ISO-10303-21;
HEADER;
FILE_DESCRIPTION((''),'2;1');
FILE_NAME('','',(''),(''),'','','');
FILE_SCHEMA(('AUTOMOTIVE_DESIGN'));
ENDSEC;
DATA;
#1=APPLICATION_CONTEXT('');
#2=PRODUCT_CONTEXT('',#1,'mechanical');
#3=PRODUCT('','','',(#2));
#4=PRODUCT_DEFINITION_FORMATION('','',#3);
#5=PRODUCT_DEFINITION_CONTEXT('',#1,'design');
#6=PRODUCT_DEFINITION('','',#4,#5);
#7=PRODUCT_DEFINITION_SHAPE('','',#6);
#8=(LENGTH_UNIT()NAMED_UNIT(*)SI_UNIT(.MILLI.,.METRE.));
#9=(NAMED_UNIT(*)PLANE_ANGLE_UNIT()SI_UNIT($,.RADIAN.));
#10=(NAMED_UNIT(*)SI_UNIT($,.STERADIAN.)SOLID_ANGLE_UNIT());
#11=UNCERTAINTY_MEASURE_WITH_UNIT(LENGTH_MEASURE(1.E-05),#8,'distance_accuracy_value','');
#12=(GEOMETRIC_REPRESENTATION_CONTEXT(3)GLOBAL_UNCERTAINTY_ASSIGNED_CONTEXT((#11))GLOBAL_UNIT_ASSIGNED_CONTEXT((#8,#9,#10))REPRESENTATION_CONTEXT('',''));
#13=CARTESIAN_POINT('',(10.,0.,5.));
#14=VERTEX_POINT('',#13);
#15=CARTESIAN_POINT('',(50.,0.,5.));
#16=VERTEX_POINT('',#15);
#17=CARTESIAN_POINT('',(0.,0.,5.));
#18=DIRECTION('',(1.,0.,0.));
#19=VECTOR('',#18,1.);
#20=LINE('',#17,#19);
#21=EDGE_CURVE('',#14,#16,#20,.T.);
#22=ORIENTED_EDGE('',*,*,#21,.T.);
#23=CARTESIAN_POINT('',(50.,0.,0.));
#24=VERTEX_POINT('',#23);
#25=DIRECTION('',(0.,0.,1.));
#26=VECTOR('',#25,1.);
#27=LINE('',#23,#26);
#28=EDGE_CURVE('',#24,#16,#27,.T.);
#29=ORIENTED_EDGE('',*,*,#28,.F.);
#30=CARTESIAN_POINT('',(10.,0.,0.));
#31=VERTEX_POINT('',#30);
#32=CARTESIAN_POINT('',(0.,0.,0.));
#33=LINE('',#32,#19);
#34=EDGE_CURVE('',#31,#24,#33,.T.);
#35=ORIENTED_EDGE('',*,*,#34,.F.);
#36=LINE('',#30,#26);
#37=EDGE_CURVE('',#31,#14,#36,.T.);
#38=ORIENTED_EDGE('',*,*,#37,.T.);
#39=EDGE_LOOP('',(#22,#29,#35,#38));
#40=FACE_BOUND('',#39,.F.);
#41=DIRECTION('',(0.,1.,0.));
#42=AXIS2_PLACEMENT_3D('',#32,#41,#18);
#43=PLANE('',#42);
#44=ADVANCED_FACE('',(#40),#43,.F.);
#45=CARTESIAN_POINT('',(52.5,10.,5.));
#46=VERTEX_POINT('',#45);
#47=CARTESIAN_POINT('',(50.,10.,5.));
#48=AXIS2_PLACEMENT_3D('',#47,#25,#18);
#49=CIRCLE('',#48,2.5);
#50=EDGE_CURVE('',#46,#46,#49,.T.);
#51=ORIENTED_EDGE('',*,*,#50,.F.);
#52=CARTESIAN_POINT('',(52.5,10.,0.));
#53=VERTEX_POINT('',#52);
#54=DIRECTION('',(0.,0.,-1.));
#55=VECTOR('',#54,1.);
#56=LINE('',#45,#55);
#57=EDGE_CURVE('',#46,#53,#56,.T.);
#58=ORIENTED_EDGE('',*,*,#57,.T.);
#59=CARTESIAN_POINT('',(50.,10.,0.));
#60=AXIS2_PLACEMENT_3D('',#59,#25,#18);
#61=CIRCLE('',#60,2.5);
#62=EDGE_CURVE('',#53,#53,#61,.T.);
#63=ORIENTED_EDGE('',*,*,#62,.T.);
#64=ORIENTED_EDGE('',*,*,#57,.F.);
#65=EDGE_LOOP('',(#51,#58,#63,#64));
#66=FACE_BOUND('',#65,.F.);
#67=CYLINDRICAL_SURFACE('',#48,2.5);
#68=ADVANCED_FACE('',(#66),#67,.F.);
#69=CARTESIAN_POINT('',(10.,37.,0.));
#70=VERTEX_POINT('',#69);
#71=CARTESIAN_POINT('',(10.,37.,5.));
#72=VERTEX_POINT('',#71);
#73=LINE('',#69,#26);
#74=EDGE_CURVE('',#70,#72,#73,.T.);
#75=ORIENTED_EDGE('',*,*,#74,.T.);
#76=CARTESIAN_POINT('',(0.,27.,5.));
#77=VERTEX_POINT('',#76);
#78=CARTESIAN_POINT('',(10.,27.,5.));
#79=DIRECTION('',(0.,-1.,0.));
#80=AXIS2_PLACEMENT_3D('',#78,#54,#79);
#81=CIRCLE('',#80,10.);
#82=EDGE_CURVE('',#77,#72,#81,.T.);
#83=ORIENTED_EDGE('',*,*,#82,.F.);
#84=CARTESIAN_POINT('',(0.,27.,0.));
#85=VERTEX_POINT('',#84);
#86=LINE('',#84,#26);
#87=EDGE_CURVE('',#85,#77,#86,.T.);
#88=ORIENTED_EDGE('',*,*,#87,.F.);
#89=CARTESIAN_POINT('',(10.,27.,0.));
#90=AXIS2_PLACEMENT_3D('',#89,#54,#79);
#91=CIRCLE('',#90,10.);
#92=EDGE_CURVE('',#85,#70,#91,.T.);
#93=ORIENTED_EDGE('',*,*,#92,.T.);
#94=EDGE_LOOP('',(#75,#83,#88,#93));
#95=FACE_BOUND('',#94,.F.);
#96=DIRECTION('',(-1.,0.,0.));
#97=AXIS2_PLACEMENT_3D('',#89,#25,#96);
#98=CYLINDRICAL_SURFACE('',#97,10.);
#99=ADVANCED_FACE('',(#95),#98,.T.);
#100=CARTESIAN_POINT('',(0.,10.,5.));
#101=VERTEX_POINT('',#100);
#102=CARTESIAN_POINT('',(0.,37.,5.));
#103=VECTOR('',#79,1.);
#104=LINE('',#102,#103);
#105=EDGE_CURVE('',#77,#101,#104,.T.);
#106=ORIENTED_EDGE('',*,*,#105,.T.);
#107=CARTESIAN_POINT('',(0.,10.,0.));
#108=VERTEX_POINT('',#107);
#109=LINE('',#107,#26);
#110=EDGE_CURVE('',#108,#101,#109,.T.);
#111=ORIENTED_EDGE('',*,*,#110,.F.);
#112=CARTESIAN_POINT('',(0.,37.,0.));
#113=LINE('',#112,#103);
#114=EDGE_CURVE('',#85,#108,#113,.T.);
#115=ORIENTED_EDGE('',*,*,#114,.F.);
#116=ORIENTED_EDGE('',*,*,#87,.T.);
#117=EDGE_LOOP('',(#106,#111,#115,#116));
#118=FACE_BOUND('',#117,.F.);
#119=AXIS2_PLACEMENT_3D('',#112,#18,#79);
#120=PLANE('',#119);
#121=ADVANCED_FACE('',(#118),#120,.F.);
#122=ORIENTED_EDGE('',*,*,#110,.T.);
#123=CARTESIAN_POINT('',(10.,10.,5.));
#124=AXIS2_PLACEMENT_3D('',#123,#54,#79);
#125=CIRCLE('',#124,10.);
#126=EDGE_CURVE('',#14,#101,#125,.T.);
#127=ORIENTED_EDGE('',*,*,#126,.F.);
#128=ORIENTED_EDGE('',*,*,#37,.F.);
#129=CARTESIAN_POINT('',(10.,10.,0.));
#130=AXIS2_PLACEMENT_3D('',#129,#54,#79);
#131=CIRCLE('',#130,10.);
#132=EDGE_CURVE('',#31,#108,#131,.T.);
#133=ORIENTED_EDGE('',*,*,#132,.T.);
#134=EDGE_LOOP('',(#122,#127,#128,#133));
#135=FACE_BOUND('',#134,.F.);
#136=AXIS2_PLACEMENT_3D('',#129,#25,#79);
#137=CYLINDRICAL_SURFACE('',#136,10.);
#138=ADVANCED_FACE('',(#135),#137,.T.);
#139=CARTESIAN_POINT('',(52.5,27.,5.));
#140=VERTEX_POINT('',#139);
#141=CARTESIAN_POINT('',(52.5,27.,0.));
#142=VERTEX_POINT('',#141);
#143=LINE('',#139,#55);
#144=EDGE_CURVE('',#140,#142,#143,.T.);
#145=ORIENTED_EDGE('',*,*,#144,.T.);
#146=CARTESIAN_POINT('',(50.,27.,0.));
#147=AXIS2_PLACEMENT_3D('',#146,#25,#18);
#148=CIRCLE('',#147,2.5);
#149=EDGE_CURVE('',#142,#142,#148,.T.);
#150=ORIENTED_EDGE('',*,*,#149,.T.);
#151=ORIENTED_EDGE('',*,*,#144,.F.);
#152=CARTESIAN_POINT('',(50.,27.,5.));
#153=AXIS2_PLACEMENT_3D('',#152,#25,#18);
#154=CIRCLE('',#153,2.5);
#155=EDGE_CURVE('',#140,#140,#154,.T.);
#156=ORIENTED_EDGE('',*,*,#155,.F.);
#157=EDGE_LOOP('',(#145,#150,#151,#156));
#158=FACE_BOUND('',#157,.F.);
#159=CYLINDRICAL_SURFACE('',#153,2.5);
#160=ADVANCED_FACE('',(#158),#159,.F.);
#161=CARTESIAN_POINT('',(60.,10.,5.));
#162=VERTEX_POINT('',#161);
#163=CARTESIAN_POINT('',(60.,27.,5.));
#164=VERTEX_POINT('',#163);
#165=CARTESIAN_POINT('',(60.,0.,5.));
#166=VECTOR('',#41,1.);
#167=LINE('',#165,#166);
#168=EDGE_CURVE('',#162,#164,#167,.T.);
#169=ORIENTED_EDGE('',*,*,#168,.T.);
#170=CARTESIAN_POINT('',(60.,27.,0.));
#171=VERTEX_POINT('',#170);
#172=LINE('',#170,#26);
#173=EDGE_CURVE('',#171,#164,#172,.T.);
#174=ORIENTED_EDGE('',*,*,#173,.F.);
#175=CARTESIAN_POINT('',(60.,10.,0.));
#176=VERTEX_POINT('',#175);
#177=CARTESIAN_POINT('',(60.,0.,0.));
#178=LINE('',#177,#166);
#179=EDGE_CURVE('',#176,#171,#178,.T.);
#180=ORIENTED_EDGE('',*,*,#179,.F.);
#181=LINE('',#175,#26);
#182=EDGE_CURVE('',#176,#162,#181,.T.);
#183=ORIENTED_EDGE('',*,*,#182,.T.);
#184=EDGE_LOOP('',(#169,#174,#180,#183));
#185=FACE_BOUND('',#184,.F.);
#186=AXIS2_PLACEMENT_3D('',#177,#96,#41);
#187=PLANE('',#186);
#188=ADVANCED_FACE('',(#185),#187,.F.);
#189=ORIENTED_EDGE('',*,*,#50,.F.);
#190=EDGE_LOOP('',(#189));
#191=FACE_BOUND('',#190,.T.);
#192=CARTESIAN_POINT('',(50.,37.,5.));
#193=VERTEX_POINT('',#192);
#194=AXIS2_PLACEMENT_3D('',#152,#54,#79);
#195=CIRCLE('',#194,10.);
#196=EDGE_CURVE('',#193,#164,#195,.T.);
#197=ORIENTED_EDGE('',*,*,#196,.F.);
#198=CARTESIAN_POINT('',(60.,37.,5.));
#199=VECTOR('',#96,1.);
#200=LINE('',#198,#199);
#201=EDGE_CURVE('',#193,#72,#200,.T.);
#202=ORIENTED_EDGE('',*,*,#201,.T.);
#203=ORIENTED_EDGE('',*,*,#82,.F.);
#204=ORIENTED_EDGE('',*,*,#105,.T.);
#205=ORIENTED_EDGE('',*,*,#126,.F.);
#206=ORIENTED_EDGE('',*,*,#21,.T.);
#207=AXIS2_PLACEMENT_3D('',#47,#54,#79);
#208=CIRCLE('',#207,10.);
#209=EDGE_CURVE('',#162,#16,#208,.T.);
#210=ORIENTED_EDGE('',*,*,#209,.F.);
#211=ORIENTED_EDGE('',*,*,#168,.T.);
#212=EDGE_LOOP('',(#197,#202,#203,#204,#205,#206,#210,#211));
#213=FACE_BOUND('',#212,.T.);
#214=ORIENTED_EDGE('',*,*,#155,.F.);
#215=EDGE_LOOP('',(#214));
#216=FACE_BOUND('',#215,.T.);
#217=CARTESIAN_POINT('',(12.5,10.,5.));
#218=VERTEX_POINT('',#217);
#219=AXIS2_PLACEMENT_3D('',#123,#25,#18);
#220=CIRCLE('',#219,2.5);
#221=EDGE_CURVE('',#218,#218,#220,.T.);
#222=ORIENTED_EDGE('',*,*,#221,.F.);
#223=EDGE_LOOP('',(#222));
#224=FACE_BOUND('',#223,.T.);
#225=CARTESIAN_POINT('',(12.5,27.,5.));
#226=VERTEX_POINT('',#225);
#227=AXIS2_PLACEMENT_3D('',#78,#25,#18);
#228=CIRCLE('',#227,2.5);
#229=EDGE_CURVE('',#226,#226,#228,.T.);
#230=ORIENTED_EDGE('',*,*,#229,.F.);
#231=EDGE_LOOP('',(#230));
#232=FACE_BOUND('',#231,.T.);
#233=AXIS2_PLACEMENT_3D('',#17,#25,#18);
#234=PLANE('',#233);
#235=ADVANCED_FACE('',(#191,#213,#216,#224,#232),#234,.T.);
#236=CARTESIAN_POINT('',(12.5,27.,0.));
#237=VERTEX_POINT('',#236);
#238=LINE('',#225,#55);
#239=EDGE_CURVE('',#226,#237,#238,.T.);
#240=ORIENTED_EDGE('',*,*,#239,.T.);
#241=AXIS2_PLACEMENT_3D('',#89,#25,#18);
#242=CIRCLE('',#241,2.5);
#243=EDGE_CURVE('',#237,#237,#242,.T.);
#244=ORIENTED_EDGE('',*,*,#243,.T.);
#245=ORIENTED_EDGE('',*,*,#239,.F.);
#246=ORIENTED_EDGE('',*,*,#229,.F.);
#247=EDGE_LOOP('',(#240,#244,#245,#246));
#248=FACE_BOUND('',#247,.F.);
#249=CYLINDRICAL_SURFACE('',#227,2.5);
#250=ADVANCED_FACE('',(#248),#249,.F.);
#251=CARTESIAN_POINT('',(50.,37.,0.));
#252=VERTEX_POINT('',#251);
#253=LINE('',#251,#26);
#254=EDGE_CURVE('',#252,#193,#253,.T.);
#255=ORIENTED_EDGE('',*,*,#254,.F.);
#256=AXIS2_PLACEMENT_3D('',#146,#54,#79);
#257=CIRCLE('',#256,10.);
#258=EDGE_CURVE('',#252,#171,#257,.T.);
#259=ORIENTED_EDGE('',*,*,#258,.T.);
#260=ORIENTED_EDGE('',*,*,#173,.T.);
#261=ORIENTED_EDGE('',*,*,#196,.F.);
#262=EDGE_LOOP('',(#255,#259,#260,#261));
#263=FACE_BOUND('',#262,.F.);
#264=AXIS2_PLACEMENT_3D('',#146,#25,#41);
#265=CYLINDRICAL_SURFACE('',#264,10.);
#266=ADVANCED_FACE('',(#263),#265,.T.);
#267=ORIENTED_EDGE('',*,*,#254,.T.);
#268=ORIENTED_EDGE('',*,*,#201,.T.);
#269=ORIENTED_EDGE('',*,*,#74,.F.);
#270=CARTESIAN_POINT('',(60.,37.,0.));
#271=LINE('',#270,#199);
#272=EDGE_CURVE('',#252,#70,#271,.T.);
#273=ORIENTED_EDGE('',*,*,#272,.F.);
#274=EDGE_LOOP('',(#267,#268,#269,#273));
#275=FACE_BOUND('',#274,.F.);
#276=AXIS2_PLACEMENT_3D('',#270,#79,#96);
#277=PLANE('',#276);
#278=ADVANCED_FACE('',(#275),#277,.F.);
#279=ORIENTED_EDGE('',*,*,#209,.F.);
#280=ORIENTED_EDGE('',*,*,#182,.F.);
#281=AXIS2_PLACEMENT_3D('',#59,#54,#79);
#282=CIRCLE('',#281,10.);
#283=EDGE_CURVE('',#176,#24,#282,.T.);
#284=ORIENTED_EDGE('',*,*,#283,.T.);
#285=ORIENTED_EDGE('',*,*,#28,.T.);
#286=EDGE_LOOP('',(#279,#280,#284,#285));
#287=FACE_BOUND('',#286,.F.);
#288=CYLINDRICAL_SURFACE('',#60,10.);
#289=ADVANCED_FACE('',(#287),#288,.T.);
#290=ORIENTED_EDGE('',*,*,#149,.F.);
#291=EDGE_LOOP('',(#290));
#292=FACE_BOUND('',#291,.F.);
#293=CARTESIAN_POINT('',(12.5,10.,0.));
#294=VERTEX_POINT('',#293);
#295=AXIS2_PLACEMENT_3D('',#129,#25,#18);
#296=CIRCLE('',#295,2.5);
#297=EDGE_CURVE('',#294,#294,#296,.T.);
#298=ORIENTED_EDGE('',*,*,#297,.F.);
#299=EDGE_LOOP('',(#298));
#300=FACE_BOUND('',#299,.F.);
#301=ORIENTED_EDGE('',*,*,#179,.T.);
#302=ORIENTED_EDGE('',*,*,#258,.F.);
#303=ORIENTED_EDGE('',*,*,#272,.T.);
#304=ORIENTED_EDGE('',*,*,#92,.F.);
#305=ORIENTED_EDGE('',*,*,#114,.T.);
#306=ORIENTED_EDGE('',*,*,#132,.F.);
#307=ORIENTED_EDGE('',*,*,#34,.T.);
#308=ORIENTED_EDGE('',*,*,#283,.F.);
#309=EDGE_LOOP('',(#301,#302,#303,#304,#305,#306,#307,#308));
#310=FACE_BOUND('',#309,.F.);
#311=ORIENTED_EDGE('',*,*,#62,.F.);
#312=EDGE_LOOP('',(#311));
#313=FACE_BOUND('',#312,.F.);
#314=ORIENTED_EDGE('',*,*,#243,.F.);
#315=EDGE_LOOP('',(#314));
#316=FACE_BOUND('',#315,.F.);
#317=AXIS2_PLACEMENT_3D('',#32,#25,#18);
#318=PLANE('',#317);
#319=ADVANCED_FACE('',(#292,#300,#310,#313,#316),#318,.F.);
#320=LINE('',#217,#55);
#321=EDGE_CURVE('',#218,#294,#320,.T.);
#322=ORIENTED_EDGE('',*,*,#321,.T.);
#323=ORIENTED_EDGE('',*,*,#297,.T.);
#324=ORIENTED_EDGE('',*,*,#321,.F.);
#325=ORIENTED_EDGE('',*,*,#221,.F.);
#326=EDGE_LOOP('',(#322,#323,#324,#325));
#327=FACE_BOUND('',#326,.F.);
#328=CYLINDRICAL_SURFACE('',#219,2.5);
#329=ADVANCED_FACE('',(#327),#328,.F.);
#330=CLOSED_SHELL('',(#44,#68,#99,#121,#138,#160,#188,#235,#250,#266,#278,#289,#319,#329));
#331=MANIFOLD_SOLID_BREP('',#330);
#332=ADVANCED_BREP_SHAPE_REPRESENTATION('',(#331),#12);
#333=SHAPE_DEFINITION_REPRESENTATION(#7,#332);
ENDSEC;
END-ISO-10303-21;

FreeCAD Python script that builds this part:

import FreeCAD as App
import Part
import Sketcher
from FreeCAD import Vector


def edges_at(feature, points):
    """Names of the edges that pass closest to the given points."""
    edges = feature.Shape.Edges
    near = lambda p: min(range(len(edges)), key=lambda i: edges[i].distToShape(Part.Vertex(*p))[0])
    return sorted({f"Edge{near(p) + 1}" for p in points})


def add_polygon(sketch, points):
    """Adds a closed chain of lines whose ends are joined by coincident constraints."""
    first, n = sketch.GeometryCount, len(points)
    for a, b in zip(points, points[1:] + points[:1]):
        sketch.addGeometry(Part.LineSegment(App.Vector(*a, 0), App.Vector(*b, 0)), False)
    for i in range(n):
        sketch.addConstraint(Sketcher.Constraint("Coincident", first + i, 2, first + (i + 1) % n, 1))

doc = App.newDocument("Part")
params = doc.addObject("Spreadsheet::Sheet", "Params")
for row, (alias, value) in enumerate([
    ("sketch1_width", "60 mm"),
    ("sketch1_height", "37 mm"),
    ("pad1_length", "5 mm"),
    ("sketch2_diameter", "5 mm"),
    ("pocket1_length", "5 mm"),
    ("fillet_radius", "10 mm"),
    ("fillet2_radius", "10 mm"),
    ("fillet3_radius", "10 mm"),
    ("fillet4_radius", "10 mm"),
], start=1):
    params.set(f"A{row}", alias)
    params.set(f"B{row}", "=" + value)
    params.setAlias(f"B{row}", alias)

body = doc.addObject("PartDesign::Body", "Body")

# Sketch on XY plane
sketch1 = body.newObject("Sketcher::SketchObject", "Sketch")
sketch1.AttachmentSupport = (doc.getObject("XY_Plane"), [""])
sketch1.MapMode = "FlatFace"
add_polygon(sketch1, [(0, 37), (0, 0), (60, 0), (60, 37)])  # lines 0-3
sketch1.addConstraint([
    Sketcher.Constraint("Vertical", 0),
    Sketcher.Constraint("Horizontal", 1),
    Sketcher.Constraint("Vertical", 2),
    Sketcher.Constraint("Horizontal", 3),
    Sketcher.Constraint("Coincident", 0, 2, -1, 1),
    Sketcher.Constraint("DistanceX", 1, 1, 1, 2, 60.0),
    Sketcher.Constraint("DistanceY", 0, 2, 0, 1, 37.0),
])
sketch1.setExpression("Constraints[9]", "Params.sketch1_width")
sketch1.setExpression("Constraints[10]", "Params.sketch1_height")
pad1 = body.newObject("PartDesign::Pad", "Pad")
pad1.Profile = sketch1
pad1.setExpression("Length", "Params.pad1_length")

# Sketch on XY plane
sketch2 = body.newObject("Sketcher::SketchObject", "Sketch001")
sketch2.AttachmentSupport = (doc.getObject("XY_Plane"), [""])
sketch2.MapMode = "FlatFace"
sketch2.AttachmentOffset = App.Placement(Vector(0, 0, 5), App.Rotation())
sketch2.addGeometry([
    Part.Circle(Vector(10, 10, 0), Vector(0, 0, 1), 2.5),
    Part.Circle(Vector(50, 10, 0), Vector(0, 0, 1), 2.5),
    Part.Circle(Vector(10, 27, 0), Vector(0, 0, 1), 2.5),
    Part.Circle(Vector(50, 27, 0), Vector(0, 0, 1), 2.5),
], False)
sketch2.addConstraint([
    Sketcher.Constraint("Equal", 0, 1),
    Sketcher.Constraint("Equal", 1, 2),
    Sketcher.Constraint("Equal", 2, 3),
    Sketcher.Constraint("Horizontal", 0, 3, 1, 3),
    Sketcher.Constraint("Horizontal", 2, 3, 3, 3),
    Sketcher.Constraint("Vertical", 0, 3, 2, 3),
    Sketcher.Constraint("Vertical", 1, 3, 3, 3),
    Sketcher.Constraint("Diameter", 0, 5.0),
    Sketcher.Constraint("DistanceX", -1, 1, 0, 3, 10.0),
    Sketcher.Constraint("DistanceY", -1, 1, 0, 3, 10.0),
    Sketcher.Constraint("DistanceX", -1, 1, 1, 3, 50.0),
    Sketcher.Constraint("DistanceY", -1, 1, 2, 3, 27.0),
])
sketch2.setExpression("Constraints[7]", "Params.sketch2_diameter")
pocket1 = body.newObject("PartDesign::Pocket", "Pocket")
pocket1.Profile = sketch2
pocket1.setExpression("Length", "Params.pocket1_length")
doc.recompute()

fillet = body.newObject("PartDesign::Fillet", "Fillet")
fillet.Base = (pocket1, edges_at(pocket1, [(0, 37, 2.5)]))
fillet.setExpression("Radius", "Params.fillet_radius")
doc.recompute()

fillet2 = body.newObject("PartDesign::Fillet", "Fillet001")
fillet2.Base = (fillet, edges_at(fillet, [(60, 37, 2.5)]))
fillet2.setExpression("Radius", "Params.fillet2_radius")
doc.recompute()

fillet3 = body.newObject("PartDesign::Fillet", "Fillet002")
fillet3.Base = (fillet2, edges_at(fillet2, [(60, 0, 2.5)]))
fillet3.setExpression("Radius", "Params.fillet3_radius")
doc.recompute()

fillet4 = body.newObject("PartDesign::Fillet", "Fillet003")
fillet4.Base = (fillet3, edges_at(fillet3, [(0, 0, 2.5)]))
fillet4.setExpression("Radius", "Params.fillet4_radius")

doc.recompute()
